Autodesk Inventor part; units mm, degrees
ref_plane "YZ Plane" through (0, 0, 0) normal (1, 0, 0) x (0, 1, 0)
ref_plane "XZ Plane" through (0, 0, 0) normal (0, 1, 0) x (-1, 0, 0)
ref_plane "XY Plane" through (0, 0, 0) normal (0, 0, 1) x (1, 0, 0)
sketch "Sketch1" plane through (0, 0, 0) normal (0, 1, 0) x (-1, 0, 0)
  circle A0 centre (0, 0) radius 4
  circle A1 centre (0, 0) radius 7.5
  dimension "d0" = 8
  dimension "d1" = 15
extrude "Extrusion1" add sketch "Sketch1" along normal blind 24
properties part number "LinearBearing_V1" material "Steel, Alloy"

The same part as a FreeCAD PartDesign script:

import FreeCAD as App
import Part
import Sketcher

doc = App.newDocument("Part")
body = doc.addObject("PartDesign::Body", "Body")

# Sketch on XZ plane
sketch1 = doc.addObject("Sketcher::SketchObject", "Sketch")
body.addObject(sketch1)
sketch1.AttachmentSupport = (doc.XZ_Plane, [""])
sketch1.MapMode = "FlatFace"
sketch1.addGeometry(Part.Circle(App.Vector(0, 0, 0), App.Vector(0, 0, 1), 7.5), False)
sketch1.addGeometry(Part.Circle(App.Vector(0, 0, 0), App.Vector(0, 0, 1), 4), False)
sketch1.addConstraint(Sketcher.Constraint("Coincident", 0, 3, -1, 1))
sketch1.addConstraint(Sketcher.Constraint("Coincident", 1, 3, -1, 1))
sketch1.addConstraint(Sketcher.Constraint("Diameter", 0, 15.0))
sketch1.addConstraint(Sketcher.Constraint("Diameter", 1, 8.0))
pad1 = doc.addObject("PartDesign::Pad", "Pad")
body.addObject(pad1)
pad1.Profile = sketch1
pad1.Length = 24
pad1.Reversed = True

doc.recompute()
